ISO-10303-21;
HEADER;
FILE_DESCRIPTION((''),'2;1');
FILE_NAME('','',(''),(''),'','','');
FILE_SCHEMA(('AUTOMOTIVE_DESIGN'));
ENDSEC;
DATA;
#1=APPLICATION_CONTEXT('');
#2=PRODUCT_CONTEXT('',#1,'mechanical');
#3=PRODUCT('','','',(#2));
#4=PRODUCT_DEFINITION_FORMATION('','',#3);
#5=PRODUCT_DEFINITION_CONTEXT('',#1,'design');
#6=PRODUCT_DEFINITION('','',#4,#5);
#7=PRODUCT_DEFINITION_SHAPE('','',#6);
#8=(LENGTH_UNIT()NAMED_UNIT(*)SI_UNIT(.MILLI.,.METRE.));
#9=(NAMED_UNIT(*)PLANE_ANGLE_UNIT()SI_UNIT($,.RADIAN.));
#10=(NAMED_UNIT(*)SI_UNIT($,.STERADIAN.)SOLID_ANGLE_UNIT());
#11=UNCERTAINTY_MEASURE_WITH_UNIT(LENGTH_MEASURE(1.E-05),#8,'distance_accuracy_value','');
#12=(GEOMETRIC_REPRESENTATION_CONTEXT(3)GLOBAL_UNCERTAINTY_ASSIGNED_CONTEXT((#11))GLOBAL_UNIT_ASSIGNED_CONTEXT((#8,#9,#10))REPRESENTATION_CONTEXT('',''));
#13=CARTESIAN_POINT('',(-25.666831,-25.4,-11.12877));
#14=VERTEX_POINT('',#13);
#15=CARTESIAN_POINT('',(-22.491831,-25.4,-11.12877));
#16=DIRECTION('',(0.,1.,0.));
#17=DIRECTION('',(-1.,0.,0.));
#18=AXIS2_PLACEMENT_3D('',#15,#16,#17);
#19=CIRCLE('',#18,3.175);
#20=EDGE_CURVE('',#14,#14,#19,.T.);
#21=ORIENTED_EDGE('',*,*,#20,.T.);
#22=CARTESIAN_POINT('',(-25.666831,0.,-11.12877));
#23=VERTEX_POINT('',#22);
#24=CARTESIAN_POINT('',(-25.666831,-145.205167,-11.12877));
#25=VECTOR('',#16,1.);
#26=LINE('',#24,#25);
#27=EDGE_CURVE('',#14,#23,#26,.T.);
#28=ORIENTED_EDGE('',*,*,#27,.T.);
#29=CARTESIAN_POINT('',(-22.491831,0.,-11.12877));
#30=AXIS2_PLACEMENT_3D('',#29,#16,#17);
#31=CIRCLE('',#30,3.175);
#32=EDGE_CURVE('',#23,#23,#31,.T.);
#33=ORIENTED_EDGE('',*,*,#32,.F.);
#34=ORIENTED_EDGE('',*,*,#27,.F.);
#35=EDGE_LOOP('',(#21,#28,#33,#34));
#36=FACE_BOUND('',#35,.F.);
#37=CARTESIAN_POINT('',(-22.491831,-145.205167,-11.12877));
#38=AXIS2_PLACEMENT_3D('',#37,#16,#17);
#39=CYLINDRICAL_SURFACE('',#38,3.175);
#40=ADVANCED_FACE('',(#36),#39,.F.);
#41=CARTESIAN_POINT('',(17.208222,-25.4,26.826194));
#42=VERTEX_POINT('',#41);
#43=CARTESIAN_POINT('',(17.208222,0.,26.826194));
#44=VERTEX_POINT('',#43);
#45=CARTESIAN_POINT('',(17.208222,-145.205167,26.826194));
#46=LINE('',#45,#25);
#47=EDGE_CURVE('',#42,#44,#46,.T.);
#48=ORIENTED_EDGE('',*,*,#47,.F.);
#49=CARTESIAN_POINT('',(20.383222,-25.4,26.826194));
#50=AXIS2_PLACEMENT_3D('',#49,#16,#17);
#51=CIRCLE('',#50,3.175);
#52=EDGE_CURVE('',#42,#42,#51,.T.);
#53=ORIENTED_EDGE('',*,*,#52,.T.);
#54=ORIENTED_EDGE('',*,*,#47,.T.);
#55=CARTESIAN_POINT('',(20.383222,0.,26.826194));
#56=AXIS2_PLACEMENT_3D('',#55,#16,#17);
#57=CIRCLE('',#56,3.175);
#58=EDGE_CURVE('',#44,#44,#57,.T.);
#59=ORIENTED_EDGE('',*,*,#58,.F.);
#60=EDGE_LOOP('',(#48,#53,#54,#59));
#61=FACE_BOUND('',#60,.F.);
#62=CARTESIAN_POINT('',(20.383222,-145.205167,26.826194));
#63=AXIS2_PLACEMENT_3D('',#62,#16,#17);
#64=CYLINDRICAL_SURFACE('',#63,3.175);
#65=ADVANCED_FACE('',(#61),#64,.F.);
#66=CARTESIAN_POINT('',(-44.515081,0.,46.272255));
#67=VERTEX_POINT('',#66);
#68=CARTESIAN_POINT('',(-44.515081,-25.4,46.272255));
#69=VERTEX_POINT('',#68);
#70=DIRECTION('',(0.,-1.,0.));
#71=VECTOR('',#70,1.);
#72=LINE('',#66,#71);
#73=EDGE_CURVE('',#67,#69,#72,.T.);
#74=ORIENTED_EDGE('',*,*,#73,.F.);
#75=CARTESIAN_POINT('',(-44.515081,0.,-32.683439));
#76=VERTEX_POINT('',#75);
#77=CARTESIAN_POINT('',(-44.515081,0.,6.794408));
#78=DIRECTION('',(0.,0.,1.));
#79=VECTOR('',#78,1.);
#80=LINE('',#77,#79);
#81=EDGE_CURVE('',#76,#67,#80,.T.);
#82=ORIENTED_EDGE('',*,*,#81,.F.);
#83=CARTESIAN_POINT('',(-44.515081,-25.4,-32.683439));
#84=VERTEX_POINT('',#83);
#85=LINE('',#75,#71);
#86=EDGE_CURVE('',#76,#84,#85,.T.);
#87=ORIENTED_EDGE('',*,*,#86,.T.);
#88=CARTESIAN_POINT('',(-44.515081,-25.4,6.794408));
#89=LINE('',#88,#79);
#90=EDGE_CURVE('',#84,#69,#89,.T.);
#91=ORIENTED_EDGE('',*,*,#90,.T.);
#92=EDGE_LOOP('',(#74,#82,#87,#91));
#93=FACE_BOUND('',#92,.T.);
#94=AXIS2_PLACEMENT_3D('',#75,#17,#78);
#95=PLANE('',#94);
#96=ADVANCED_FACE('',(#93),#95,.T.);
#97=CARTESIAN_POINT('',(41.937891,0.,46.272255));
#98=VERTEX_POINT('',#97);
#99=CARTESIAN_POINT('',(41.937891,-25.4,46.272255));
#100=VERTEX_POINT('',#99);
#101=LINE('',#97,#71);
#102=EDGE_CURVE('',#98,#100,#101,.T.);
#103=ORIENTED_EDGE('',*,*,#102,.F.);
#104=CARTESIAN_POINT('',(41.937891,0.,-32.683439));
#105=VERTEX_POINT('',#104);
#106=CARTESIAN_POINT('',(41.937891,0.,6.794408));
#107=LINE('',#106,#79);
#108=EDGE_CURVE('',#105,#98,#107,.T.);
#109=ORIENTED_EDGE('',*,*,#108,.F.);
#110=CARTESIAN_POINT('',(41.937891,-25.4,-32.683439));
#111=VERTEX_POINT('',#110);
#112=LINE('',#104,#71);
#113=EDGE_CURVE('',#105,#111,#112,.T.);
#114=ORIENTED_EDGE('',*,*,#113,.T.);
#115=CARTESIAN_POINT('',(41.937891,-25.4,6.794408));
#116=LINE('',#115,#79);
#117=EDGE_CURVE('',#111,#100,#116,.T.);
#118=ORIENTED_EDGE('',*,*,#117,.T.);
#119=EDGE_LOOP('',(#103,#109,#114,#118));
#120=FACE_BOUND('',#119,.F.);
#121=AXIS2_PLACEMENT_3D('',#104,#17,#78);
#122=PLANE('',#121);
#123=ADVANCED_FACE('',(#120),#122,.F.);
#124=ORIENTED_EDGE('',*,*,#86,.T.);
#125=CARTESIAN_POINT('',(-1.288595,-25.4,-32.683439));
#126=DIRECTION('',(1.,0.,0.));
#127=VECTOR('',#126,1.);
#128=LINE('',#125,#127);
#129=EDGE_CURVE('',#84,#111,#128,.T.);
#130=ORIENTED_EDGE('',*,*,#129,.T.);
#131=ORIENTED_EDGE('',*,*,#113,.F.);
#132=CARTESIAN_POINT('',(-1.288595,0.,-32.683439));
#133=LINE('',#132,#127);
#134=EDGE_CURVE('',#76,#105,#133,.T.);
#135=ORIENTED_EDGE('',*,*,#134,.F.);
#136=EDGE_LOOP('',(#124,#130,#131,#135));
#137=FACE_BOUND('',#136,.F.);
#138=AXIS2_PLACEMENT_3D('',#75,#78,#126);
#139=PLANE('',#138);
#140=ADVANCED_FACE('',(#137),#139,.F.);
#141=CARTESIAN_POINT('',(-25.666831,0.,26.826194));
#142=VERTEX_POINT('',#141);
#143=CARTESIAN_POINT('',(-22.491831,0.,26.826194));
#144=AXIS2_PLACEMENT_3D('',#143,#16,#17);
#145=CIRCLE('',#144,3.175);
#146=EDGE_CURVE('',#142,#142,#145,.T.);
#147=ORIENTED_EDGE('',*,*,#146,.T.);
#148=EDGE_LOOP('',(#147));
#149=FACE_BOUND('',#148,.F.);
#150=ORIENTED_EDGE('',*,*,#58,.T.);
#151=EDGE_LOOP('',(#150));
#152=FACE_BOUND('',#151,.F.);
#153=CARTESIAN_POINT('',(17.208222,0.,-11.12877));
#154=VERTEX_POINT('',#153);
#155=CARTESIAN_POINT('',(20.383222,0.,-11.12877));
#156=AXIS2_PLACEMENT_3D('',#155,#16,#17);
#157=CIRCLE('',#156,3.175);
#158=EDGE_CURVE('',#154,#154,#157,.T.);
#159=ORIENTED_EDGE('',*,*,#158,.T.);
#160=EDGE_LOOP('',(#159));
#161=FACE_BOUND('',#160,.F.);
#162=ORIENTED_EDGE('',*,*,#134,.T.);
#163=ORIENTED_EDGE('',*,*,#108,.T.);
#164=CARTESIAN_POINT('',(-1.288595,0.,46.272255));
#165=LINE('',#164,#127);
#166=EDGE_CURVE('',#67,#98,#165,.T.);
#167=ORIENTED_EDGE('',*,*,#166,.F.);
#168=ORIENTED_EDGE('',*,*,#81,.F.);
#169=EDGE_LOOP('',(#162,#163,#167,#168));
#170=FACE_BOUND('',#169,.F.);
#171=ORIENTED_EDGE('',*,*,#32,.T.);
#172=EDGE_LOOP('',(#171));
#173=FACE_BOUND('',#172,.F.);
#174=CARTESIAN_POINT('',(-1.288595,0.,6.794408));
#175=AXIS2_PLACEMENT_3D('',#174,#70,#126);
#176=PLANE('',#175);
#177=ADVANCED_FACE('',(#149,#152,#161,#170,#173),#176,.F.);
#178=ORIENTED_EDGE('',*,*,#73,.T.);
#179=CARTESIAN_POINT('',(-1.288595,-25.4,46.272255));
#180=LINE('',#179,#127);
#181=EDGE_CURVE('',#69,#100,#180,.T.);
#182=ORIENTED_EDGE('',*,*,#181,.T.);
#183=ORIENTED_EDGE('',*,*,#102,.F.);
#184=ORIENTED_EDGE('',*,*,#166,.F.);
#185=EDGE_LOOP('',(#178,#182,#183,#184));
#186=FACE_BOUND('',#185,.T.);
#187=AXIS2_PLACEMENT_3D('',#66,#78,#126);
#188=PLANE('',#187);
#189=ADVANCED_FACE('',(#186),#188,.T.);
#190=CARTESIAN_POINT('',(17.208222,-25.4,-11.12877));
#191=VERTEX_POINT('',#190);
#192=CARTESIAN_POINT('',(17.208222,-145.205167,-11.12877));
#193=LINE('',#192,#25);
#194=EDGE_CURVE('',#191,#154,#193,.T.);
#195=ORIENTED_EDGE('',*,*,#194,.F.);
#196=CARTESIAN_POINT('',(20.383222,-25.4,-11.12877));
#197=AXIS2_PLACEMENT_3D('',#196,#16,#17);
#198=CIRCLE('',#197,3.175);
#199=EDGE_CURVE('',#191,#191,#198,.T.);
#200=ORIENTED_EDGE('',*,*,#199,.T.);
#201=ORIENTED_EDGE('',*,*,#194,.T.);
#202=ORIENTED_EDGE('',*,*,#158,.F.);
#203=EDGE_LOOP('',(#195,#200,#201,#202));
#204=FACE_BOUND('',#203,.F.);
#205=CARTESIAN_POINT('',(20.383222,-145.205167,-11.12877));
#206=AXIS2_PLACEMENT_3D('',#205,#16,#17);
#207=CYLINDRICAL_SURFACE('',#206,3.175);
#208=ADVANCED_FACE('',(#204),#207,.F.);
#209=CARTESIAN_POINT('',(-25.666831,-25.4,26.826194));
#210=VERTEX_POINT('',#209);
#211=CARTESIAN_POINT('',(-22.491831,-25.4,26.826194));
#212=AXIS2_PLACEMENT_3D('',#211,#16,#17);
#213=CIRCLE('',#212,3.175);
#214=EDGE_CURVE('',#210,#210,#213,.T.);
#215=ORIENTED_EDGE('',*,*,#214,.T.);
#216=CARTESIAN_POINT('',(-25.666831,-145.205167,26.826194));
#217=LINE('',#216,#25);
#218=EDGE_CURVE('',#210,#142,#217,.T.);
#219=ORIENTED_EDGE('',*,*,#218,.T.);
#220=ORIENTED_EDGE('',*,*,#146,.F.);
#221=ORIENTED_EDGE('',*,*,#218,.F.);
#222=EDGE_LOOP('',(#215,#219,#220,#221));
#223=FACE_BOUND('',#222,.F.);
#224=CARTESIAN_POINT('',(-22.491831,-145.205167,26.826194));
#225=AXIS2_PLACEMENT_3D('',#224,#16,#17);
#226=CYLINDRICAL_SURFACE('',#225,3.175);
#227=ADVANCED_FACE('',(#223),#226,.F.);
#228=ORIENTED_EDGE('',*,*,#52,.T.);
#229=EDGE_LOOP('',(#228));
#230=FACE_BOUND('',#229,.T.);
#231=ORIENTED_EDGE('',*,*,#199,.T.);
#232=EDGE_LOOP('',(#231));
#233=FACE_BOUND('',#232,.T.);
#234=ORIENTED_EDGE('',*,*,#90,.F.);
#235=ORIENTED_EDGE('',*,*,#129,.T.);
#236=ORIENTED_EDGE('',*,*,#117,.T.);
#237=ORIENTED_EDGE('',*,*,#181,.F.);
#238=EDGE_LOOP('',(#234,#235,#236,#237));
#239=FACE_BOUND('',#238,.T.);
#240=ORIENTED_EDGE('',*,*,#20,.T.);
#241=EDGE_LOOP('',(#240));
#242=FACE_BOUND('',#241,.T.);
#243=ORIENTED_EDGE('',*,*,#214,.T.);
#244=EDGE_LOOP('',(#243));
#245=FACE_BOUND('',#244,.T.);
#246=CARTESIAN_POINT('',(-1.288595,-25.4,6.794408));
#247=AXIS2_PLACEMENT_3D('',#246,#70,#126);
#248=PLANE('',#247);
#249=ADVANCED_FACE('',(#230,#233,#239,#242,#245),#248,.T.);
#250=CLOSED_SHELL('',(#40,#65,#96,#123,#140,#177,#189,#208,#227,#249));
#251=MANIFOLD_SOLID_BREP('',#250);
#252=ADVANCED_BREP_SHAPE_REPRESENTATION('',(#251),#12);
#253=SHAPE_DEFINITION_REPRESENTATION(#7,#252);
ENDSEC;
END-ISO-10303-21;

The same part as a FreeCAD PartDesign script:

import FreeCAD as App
import Part
import Sketcher
Q = App.Units.Quantity

doc = App.newDocument("Part")
body = doc.addObject("PartDesign::Body", "Body")

# Sketch on XZ plane
sketch1 = doc.addObject("Sketcher::SketchObject", "Sketch")
body.addObject(sketch1)
sketch1.AttachmentSupport = (doc.XZ_Plane, [""])
sketch1.MapMode = "FlatFace"
sketch1.addGeometry(Part.LineSegment(App.Vector(-44.515081, 46.272255, 0), App.Vector(-44.515081, -32.683439, 0)), False)
sketch1.addGeometry(Part.LineSegment(App.Vector(-44.515081, -32.683439, 0), App.Vector(41.937891, -32.683439, 0)), False)
sketch1.addGeometry(Part.LineSegment(App.Vector(41.937891, -32.683439, 0), App.Vector(41.937891, 46.272255, 0)), False)
sketch1.addGeometry(Part.LineSegment(App.Vector(41.937891, 46.272255, 0), App.Vector(-44.515081, 46.272255, 0)), False)
sketch1.addConstraint(Sketcher.Constraint("Coincident", 0, 2, 1, 1))
sketch1.addConstraint(Sketcher.Constraint("Coincident", 1, 2, 2, 1))
sketch1.addConstraint(Sketcher.Constraint("Coincident", 2, 2, 3, 1))
sketch1.addConstraint(Sketcher.Constraint("Coincident", 3, 2, 0, 1))
sketch1.addConstraint(Sketcher.Constraint("Vertical", 0))
sketch1.addConstraint(Sketcher.Constraint("Horizontal", 1))
sketch1.addConstraint(Sketcher.Constraint("Vertical", 2))
sketch1.addConstraint(Sketcher.Constraint("Horizontal", 3))
sketch1.addConstraint(Sketcher.Constraint("DistanceX", 1, 1, 1, 2, 86.452972))
sketch1.addConstraint(Sketcher.Constraint("DistanceY", 0, 2, 0, 1, 78.955695))
sketch1.addConstraint(Sketcher.Constraint("DistanceX", 0, 2, -1, 1, 44.515081))
sketch1.addConstraint(Sketcher.Constraint("DistanceY", 0, 2, -1, 1, 32.683439))
pad1 = doc.addObject("PartDesign::Pad", "Pad")
body.addObject(pad1)
pad1.Profile = sketch1
pad1.Length = Q("1 in")

# Sketch on XZ plane
sketch2 = doc.addObject("Sketcher::SketchObject", "Sketch001")
body.addObject(sketch2)
sketch2.AttachmentSupport = (doc.XZ_Plane, [""])
sketch2.MapMode = "FlatFace"
sketch2.AttachmentOffset = App.Placement(App.Vector(0, 0, 1 * 25.4), App.Rotation())
sketch2.addGeometry(Part.Circle(App.Vector(-22.491831, 26.826194, 0), App.Vector(0, 0, 1), 3.175), False)
sketch2.addGeometry(Part.Circle(App.Vector(20.383222, 26.826194, 0), App.Vector(0, 0, 1), 3.175), False)
sketch2.addGeometry(Part.Circle(App.Vector(20.383222, -11.12877, 0), App.Vector(0, 0, 1), 3.175), False)
sketch2.addGeometry(Part.Circle(App.Vector(-22.491831, -11.12877, 0), App.Vector(0, 0, 1), 3.175), False)
sketch2.addConstraint(Sketcher.Constraint("Equal", 0, 1))
sketch2.addConstraint(Sketcher.Constraint("Equal", 1, 2))
sketch2.addConstraint(Sketcher.Constraint("Equal", 2, 3))
sketch2.addConstraint(Sketcher.Constraint("Horizontal", 0, 3, 1, 3))
sketch2.addConstraint(Sketcher.Constraint("Horizontal", 2, 3, 3, 3))
sketch2.addConstraint(Sketcher.Constraint("Vertical", 1, 3, 2, 3))
sketch2.addConstraint(Sketcher.Constraint("Vertical", 0, 3, 3, 3))
sketch2.addConstraint(Sketcher.Constraint("Diameter", 0, Q("0.25 in")))
sketch2.addConstraint(Sketcher.Constraint("DistanceX", 0, 3, -1, 1, 22.491831))
sketch2.addConstraint(Sketcher.Constraint("DistanceX", -1, 1, 1, 3, 20.383222))
sketch2.addConstraint(Sketcher.Constraint("DistanceY", 2, 3, -1, 1, 11.12877))
sketch2.addConstraint(Sketcher.Constraint("DistanceY", -1, 1, 0, 3, 26.826194))
doc.recompute()
hole = doc.addObject("PartDesign::Hole", "Hole")
body.addObject(hole)
hole.Profile = sketch2
hole.ThreadType = "None"
hole.Diameter = Q("0.25 in")
hole.DepthType = "ThroughAll"

doc.recompute()
